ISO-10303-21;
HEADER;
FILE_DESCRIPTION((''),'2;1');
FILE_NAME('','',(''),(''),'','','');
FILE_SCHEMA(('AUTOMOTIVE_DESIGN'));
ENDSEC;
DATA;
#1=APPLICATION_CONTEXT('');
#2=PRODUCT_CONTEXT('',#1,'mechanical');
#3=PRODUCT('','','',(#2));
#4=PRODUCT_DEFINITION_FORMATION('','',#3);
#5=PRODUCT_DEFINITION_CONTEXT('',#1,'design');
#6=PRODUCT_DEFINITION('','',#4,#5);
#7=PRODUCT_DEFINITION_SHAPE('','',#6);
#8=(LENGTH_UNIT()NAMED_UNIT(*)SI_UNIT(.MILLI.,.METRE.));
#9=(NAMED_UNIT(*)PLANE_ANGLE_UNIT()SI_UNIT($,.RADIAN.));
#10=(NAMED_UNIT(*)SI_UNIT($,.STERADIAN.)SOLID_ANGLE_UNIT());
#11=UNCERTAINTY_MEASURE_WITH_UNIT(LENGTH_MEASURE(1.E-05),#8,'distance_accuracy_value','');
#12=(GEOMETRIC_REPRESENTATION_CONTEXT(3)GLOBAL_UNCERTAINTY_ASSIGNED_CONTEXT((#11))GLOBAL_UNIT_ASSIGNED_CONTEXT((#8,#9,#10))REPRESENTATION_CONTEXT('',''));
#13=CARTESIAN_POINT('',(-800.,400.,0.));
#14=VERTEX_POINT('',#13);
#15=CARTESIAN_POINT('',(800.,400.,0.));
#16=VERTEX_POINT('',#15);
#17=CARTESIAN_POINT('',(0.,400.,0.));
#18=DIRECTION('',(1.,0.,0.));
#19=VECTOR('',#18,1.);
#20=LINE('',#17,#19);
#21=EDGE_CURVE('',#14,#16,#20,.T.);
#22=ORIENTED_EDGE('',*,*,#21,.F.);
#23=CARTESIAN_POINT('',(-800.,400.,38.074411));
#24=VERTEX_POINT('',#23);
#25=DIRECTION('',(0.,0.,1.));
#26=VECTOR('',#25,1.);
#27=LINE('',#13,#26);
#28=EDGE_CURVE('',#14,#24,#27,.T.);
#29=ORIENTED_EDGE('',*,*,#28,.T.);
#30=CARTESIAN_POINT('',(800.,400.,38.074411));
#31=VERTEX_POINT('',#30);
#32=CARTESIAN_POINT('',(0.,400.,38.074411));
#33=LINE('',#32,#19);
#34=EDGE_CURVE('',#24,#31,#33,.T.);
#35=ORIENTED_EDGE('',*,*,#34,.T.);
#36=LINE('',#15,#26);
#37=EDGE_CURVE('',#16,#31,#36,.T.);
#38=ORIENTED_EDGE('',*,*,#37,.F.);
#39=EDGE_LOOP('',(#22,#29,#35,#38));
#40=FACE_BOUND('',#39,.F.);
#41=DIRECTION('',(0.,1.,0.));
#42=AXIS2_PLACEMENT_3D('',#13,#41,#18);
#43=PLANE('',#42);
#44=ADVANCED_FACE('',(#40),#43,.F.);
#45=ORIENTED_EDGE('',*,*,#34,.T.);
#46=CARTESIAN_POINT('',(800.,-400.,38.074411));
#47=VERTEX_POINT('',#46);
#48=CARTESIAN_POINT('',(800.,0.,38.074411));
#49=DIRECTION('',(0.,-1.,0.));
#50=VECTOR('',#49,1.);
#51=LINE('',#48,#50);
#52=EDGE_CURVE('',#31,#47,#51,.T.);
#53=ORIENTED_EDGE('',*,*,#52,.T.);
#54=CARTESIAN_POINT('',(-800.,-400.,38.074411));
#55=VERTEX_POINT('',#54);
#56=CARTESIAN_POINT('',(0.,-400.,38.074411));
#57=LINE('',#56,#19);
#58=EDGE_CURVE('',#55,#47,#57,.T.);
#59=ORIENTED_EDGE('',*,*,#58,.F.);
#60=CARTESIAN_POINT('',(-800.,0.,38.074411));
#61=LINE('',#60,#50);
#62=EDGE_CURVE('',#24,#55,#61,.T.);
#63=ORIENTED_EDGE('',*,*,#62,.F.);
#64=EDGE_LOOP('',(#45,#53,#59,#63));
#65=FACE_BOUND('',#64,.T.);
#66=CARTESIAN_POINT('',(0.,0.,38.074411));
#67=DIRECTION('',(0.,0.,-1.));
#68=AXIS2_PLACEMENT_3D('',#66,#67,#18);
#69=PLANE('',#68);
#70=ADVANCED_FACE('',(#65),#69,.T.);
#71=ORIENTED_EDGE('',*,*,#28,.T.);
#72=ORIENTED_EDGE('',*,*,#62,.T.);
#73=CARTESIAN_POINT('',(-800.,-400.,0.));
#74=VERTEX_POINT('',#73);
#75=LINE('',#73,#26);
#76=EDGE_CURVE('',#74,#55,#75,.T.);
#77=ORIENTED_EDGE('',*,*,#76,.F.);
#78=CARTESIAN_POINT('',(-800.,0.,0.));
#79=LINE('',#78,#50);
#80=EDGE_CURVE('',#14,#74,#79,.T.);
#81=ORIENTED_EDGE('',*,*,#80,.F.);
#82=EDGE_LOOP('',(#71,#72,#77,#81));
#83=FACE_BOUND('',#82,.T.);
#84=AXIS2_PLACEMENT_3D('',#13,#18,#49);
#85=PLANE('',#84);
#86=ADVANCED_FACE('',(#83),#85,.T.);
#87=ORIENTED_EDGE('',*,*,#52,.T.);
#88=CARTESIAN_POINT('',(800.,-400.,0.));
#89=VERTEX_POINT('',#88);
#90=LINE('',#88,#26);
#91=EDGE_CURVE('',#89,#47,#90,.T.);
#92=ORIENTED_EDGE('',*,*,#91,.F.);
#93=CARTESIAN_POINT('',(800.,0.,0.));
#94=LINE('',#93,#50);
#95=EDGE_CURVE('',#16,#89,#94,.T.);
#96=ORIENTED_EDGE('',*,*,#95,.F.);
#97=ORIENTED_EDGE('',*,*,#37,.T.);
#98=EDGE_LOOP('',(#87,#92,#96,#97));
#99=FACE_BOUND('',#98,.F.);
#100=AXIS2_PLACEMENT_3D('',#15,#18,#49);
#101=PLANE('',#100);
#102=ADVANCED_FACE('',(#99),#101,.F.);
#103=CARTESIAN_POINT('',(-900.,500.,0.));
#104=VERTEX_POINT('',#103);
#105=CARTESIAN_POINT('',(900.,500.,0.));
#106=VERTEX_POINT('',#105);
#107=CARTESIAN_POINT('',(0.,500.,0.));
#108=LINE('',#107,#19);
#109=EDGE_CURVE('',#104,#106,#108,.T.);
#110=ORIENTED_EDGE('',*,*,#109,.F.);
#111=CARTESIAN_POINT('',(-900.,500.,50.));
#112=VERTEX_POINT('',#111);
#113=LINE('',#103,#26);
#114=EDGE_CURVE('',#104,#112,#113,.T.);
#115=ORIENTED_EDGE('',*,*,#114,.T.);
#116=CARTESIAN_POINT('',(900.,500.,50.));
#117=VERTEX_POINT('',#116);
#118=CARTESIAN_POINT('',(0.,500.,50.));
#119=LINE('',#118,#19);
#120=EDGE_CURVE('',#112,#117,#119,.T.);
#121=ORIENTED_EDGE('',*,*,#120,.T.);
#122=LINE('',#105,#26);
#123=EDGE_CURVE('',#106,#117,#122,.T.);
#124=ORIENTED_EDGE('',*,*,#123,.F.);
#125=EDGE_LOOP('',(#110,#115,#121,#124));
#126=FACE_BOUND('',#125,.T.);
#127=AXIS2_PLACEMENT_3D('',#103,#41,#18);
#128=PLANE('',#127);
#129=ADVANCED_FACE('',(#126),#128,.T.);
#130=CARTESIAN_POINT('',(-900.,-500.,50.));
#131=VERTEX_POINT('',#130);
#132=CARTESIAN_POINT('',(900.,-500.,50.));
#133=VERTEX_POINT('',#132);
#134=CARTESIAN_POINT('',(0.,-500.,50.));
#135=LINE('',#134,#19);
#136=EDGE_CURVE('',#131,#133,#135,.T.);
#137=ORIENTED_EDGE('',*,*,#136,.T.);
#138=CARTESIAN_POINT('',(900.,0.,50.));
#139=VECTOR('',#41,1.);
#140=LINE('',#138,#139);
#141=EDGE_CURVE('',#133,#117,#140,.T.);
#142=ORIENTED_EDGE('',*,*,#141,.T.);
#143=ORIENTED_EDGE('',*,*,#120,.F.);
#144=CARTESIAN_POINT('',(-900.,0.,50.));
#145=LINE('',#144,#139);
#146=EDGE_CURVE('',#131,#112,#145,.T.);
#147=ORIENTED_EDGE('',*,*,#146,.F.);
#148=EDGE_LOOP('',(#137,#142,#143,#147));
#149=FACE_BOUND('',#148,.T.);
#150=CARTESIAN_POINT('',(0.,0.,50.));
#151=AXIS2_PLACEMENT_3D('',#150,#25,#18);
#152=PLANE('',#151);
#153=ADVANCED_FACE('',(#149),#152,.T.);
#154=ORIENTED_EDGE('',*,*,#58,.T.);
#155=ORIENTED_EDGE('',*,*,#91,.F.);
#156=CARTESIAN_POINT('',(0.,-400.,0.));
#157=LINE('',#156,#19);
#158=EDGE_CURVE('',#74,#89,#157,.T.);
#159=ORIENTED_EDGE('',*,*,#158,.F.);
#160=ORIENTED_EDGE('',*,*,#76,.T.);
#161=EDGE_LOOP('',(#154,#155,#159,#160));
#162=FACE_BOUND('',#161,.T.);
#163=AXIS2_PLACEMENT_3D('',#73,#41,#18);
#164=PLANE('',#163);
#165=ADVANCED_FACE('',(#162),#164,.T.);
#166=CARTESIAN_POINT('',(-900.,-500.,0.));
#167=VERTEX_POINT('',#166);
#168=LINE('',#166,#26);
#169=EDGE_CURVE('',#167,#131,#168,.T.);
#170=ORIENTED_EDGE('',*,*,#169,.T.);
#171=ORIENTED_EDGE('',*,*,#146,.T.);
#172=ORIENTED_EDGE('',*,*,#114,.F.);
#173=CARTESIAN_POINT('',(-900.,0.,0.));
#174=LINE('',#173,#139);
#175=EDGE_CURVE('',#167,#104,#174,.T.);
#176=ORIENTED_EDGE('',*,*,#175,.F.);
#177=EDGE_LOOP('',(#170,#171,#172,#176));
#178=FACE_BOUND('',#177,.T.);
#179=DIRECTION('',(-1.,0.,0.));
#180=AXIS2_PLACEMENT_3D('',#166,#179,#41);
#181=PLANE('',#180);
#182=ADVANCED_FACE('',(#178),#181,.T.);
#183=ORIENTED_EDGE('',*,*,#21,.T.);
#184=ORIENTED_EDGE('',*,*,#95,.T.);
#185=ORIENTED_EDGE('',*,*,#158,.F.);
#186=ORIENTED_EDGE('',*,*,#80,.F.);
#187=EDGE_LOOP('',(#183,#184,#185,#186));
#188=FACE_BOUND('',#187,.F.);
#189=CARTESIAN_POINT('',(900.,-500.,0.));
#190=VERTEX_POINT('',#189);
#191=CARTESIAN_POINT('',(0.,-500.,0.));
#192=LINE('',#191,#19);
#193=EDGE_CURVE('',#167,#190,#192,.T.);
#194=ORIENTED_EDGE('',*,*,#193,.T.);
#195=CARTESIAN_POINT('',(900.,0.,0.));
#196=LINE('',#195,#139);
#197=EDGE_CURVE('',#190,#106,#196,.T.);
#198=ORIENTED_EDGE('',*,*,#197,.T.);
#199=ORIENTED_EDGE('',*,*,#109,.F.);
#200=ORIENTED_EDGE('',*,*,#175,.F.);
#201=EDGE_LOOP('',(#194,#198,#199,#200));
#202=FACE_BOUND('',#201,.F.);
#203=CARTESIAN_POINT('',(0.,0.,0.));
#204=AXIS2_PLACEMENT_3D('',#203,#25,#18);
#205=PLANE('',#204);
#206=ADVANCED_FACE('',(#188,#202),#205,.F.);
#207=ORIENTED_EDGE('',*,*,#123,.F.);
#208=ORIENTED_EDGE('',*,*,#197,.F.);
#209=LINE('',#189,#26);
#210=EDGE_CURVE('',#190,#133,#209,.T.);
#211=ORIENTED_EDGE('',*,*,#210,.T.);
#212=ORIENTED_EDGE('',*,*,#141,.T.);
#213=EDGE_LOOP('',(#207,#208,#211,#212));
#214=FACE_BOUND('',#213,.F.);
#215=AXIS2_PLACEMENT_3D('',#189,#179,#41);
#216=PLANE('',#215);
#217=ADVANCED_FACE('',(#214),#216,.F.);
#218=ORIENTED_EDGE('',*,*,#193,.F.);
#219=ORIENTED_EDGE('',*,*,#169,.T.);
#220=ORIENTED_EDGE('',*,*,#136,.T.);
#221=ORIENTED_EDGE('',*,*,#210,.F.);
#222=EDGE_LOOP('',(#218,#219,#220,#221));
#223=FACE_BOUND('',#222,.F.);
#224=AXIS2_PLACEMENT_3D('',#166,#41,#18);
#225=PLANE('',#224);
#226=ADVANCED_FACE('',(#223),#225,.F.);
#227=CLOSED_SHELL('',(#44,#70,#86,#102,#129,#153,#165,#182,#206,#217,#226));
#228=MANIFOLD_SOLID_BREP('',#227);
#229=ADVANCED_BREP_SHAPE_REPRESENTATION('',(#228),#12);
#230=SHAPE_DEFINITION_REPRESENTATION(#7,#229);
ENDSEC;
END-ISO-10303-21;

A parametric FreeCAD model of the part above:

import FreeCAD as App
import Part
import Sketcher

V = App.Vector

doc = App.newDocument("Part")
body = doc.addObject("PartDesign::Body", "Body")

# Sketch on XY plane
sketch1 = body.newObject("Sketcher::SketchObject", "Sketch")
sketch1.AttachmentSupport = (doc.getObject("XY_Plane"), [""])
sketch1.MapMode = "FlatFace"
sketch1.addGeometry(Part.LineSegment(V(-900, 500, 0), V(-900, -500, 0)), False)
sketch1.addGeometry(Part.LineSegment(V(-900, -500, 0), V(900, -500, 0)), False)
sketch1.addGeometry(Part.LineSegment(V(900, -500, 0), V(900, 500, 0)), False)
sketch1.addGeometry(Part.LineSegment(V(900, 500, 0), V(-900, 500, 0)), False)
sketch1.addConstraint(Sketcher.Constraint("Coincident", 0, 2, 1, 1))
sketch1.addConstraint(Sketcher.Constraint("Coincident", 1, 2, 2, 1))
sketch1.addConstraint(Sketcher.Constraint("Coincident", 2, 2, 3, 1))
sketch1.addConstraint(Sketcher.Constraint("Coincident", 3, 2, 0, 1))
sketch1.addConstraint(Sketcher.Constraint("Vertical", 0))
sketch1.addConstraint(Sketcher.Constraint("Horizontal", 1))
sketch1.addConstraint(Sketcher.Constraint("Vertical", 2))
sketch1.addConstraint(Sketcher.Constraint("Horizontal", 3))
sketch1.addConstraint(Sketcher.Constraint("Symmetric", 0, 2, 2, 2, -1, 1))
sketch1.addConstraint(Sketcher.Constraint("DistanceX", 1, 1, 1, 2, 1800.0))
sketch1.addConstraint(Sketcher.Constraint("DistanceY", 0, 2, 0, 1, 1000.0))
pad1 = body.newObject("PartDesign::Pad", "Pad")
pad1.Profile = sketch1
pad1.Length = 50

# Sketch on XY plane
sketch2 = body.newObject("Sketcher::SketchObject", "Sketch001")
sketch2.AttachmentSupport = (doc.getObject("XY_Plane"), [""])
sketch2.MapMode = "FlatFace"
sketch2.addGeometry(Part.LineSegment(V(-800, -400, 0), V(-800, 400, 0)), False)
sketch2.addGeometry(Part.LineSegment(V(-800, 400, 0), V(800, 400, 0)), False)
sketch2.addGeometry(Part.LineSegment(V(800, 400, 0), V(800, -400, 0)), False)
sketch2.addGeometry(Part.LineSegment(V(800, -400, 0), V(-800, -400, 0)), False)
sketch2.addConstraint(Sketcher.Constraint("Coincident", 0, 2, 1, 1))
sketch2.addConstraint(Sketcher.Constraint("Coincident", 1, 2, 2, 1))
sketch2.addConstraint(Sketcher.Constraint("Coincident", 2, 2, 3, 1))
sketch2.addConstraint(Sketcher.Constraint("Coincident", 3, 2, 0, 1))
sketch2.addConstraint(Sketcher.Constraint("Vertical", 0))
sketch2.addConstraint(Sketcher.Constraint("Horizontal", 1))
sketch2.addConstraint(Sketcher.Constraint("Vertical", 2))
sketch2.addConstraint(Sketcher.Constraint("Horizontal", 3))
sketch2.addConstraint(Sketcher.Constraint("Symmetric", 0, 2, 2, 2, -1, 1))
sketch2.addConstraint(Sketcher.Constraint("DistanceX", 1, 1, 1, 2, 1600.0))
sketch2.addConstraint(Sketcher.Constraint("DistanceY", 0, 1, 0, 2, 800.0))
pocket1 = body.newObject("PartDesign::Pocket", "Pocket")
pocket1.Profile = sketch2
pocket1.Length = 38.074411
pocket1.Reversed = True

doc.recompute()
